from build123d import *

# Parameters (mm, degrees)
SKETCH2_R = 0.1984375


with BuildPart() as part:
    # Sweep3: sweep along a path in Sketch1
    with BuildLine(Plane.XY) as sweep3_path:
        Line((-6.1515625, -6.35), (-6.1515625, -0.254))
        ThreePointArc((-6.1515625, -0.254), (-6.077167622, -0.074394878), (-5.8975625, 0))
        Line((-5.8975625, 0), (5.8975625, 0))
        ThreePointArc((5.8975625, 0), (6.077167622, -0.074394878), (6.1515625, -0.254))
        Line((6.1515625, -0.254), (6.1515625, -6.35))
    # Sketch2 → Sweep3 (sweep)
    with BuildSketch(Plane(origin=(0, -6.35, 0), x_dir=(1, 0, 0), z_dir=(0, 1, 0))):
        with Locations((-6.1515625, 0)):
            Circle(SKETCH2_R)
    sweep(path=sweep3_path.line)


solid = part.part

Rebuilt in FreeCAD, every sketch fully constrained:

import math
import FreeCAD as App
import Part
import Sketcher
from FreeCAD import Vector
Q = App.Units.Quantity

doc = App.newDocument("Part")
params = doc.addObject("Spreadsheet::Sheet", "Params")
for row, (alias, value) in enumerate([
    ("sketch1_diameter", "0.015625 in"),
    ("sketch2_radius", "0.01 in"),
    ("sketch2_height", "0.24 in"),
], start=1):
    params.set(f"A{row}", alias)
    params.set(f"B{row}", "=" + value)
    params.setAlias(f"B{row}", alias)

body = doc.addObject("PartDesign::Body", "Body")

sketch1 = doc.addObject("Sketcher::SketchObject", "Sketch")
body.addObject(sketch1)
sketch1.AttachmentSupport = (doc.XZ_Plane, [""])
sketch1.MapMode = "FlatFace"
sketch1.AttachmentOffset = App.Placement(Vector(0, 0, 0.25 * 25.4), App.Rotation())
sketch1.addGeometry(Part.Circle(Vector(-6.15, 0, 0), Vector(0, 0, 1), 0.2), False)
sketch1.addConstraint([
    Sketcher.Constraint("PointOnObject", 0, 3, -1),
    Sketcher.Constraint("Diameter", 0, Q("0.015625 in")),
    Sketcher.Constraint("DistanceX", 0, 3, -1, 1, Q("6.151562 mm")),
])
sketch1.setExpression("Constraints[1]", "Params.sketch1_diameter")

sketch2 = doc.addObject("Sketcher::SketchObject", "Sketch001")
body.addObject(sketch2)
sketch2.AttachmentSupport = (doc.XY_Plane, [""])
sketch2.MapMode = "FlatFace"
sketch2.addGeometry([
    Part.LineSegment(Vector(-6.15, -6.35, 0), Vector(-6.15, -0.25, 0)),
    Part.ArcOfCircle(Part.Circle(Vector(-5.9, -0.25, 0), Vector(0, 0, 1), 0.25), math.radians(90), math.radians(180)),
    Part.LineSegment(Vector(-5.9, 0, 0), Vector(5.9, 0, 0)),
    Part.ArcOfCircle(Part.Circle(Vector(5.9, -0.25, 0), Vector(0, 0, 1), 0.25), math.radians(0), math.radians(90)),
    Part.LineSegment(Vector(6.15, -0.25, 0), Vector(6.15, -6.35, 0)),
], False)
sketch2.addConstraint([
    Sketcher.Constraint("Tangent", 0, 2, 1, 2),
    Sketcher.Constraint("Tangent", 1, 1, 2, 1),
    Sketcher.Constraint("Tangent", 2, 2, 3, 2),
    Sketcher.Constraint("Tangent", 3, 1, 4, 1),
    Sketcher.Constraint("Vertical", 0),
    Sketcher.Constraint("Horizontal", 2),
    Sketcher.Constraint("Vertical", 4),
    Sketcher.Constraint("Equal", 1, 3),
    Sketcher.Constraint("Symmetric", 1, 1, 2, 2, -1, 1),
    Sketcher.Constraint("Horizontal", 0, 1, 4, 2),
    Sketcher.Constraint("Radius", 1, Q("0.01 in")),
    Sketcher.Constraint("DistanceY", 0, 1, 0, 2, Q("0.24 in")),
    Sketcher.Constraint("DistanceX", 0, 2, 3, 1, Q("0.484375 in")),
])
sketch2.setExpression("Constraints[10]", "Params.sketch2_radius")
sketch2.setExpression("Constraints[11]", "Params.sketch2_height")
doc.recompute()

additivepipe = doc.addObject("PartDesign::AdditivePipe", "AdditivePipe")
body.addObject(additivepipe)
additivepipe.Profile = sketch1
additivepipe.Spine = (sketch2, ["Edge1", "Edge2", "Edge3", "Edge4", "Edge5"])

doc.recompute()
